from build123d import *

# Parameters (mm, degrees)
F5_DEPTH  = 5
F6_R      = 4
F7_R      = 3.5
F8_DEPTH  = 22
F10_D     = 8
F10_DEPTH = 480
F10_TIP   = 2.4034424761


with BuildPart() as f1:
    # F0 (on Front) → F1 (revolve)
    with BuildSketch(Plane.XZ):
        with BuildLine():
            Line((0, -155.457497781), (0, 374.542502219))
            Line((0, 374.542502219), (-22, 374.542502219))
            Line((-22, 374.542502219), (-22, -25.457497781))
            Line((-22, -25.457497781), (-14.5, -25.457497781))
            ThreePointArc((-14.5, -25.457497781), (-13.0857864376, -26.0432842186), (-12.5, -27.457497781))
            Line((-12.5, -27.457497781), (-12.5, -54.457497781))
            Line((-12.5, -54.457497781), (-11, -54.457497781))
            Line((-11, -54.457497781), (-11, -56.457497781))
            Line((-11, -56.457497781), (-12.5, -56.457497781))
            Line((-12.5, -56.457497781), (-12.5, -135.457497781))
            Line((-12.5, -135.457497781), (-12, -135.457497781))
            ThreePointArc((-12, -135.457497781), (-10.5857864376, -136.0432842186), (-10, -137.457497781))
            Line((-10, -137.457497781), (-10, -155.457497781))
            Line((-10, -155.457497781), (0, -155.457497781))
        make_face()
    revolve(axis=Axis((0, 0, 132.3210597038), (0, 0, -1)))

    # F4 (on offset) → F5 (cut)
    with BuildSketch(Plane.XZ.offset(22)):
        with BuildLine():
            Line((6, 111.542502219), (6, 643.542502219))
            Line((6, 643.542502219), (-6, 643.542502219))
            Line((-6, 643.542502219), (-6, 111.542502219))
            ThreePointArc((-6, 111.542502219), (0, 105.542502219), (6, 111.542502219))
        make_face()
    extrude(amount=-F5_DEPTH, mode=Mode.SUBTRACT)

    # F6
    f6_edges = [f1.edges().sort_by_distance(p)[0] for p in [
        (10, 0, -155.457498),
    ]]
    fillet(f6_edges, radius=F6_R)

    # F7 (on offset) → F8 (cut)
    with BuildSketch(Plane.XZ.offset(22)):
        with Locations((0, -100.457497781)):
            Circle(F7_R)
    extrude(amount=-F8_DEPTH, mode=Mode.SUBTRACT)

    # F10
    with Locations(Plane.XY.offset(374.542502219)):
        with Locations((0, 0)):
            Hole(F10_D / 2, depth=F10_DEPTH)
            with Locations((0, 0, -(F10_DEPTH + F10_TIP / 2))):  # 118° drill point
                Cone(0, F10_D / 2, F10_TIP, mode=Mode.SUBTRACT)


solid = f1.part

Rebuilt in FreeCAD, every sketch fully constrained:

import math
import FreeCAD as App
import Part
import Sketcher
from FreeCAD import Vector


def edges_at(feature, points):
    """Names of the edges that pass closest to the given points."""
    edges = feature.Shape.Edges
    near = lambda p: min(range(len(edges)), key=lambda i: edges[i].distToShape(Part.Vertex(*p))[0])
    return sorted({f"Edge{near(p) + 1}" for p in points})

doc = App.newDocument("Part")
body = doc.addObject("PartDesign::Body", "Body")

sketch1 = body.newObject("Sketcher::SketchObject", "Sketch")
sketch1.AttachmentSupport = (doc.getObject("XZ_Plane"), [""])
sketch1.MapMode = "FlatFace"
sketch1.addGeometry([
    Part.LineSegment(Vector(0, -155.5, 0), Vector(0, 374.5, 0)),
    Part.LineSegment(Vector(0, 374.5, 0), Vector(-22, 374.5, 0)),
    Part.LineSegment(Vector(-22, 374.5, 0), Vector(-22, -25.5, 0)),
    Part.LineSegment(Vector(-22, -25.5, 0), Vector(-14.5, -25.5, 0)),
    Part.ArcOfCircle(Part.Circle(Vector(-14.5, -27.5, 0), Vector(0, 0, 1), 2), math.radians(0), math.radians(90)),
    Part.LineSegment(Vector(-12.5, -27.5, 0), Vector(-12.5, -54.5, 0)),
    Part.LineSegment(Vector(-12.5, -54.5, 0), Vector(-11, -54.5, 0)),
    Part.LineSegment(Vector(-11, -54.5, 0), Vector(-11, -56.5, 0)),
    Part.LineSegment(Vector(-11, -56.5, 0), Vector(-12.5, -56.5, 0)),
    Part.LineSegment(Vector(-12.5, -56.5, 0), Vector(-12.5, -135.5, 0)),
    Part.LineSegment(Vector(-12.5, -135.5, 0), Vector(-12, -135.5, 0)),
    Part.ArcOfCircle(Part.Circle(Vector(-12, -137.5, 0), Vector(0, 0, 1), 2), math.radians(0), math.radians(90)),
    Part.LineSegment(Vector(-10, -137.5, 0), Vector(-10, -155.5, 0)),
    Part.LineSegment(Vector(-10, -155.5, 0), Vector(0, -155.5, 0)),
], False)
sketch1.addConstraint([
    Sketcher.Constraint("Coincident", 0, 2, 1, 1),
    Sketcher.Constraint("Coincident", 1, 2, 2, 1),
    Sketcher.Constraint("Coincident", 2, 2, 3, 1),
    Sketcher.Constraint("Tangent", 3, 2, 4, 2),
    Sketcher.Constraint("Tangent", 4, 1, 5, 1),
    Sketcher.Constraint("Coincident", 5, 2, 6, 1),
    Sketcher.Constraint("Coincident", 6, 2, 7, 1),
    Sketcher.Constraint("Coincident", 7, 2, 8, 1),
    Sketcher.Constraint("Coincident", 8, 2, 9, 1),
    Sketcher.Constraint("Coincident", 9, 2, 10, 1),
    Sketcher.Constraint("Tangent", 10, 2, 11, 2),
    Sketcher.Constraint("Tangent", 11, 1, 12, 1),
    Sketcher.Constraint("Coincident", 12, 2, 13, 1),
    Sketcher.Constraint("Coincident", 13, 2, 0, 1),
    Sketcher.Constraint("Vertical", 0),
    Sketcher.Constraint("Horizontal", 1),
    Sketcher.Constraint("Vertical", 2),
    Sketcher.Constraint("Horizontal", 3),
    Sketcher.Constraint("Vertical", 5),
    Sketcher.Constraint("Horizontal", 6),
    Sketcher.Constraint("Vertical", 7),
    Sketcher.Constraint("Horizontal", 8),
    Sketcher.Constraint("Vertical", 9),
    Sketcher.Constraint("Horizontal", 10),
    Sketcher.Constraint("Vertical", 12),
    Sketcher.Constraint("Horizontal", 13),
    Sketcher.Constraint("Equal", 4, 11),
    Sketcher.Constraint("PointOnObject", 0, 2, -2),
    Sketcher.Constraint("Vertical", 5, 2, 8, 2),
    Sketcher.Constraint("Radius", 4, 2.0),
    Sketcher.Constraint("DistanceX", 1, 2, 1, 1, 22.0),
    Sketcher.Constraint("DistanceX", 13, 1, 13, 2, 10.0),
    Sketcher.Constraint("DistanceY", 0, 1, 0, 2, 530.0),
    Sketcher.Constraint("DistanceY", 2, 2, 2, 1, 400.0),
    Sketcher.Constraint("DistanceY", 5, 2, 5, 1, 27.0),
    Sketcher.Constraint("DistanceY", 7, 2, 7, 1, 2.0),
    Sketcher.Constraint("DistanceY", 9, 2, 9, 1, 79.0),
    Sketcher.Constraint("DistanceX", 3, 1, 3, 2, 7.5),
    Sketcher.Constraint("DistanceX", 6, 1, 6, 2, 1.5),
    Sketcher.Constraint("DistanceY", 4, 3, -1, 1, 27.457498),
])
revolution = body.newObject("PartDesign::Revolution", "Revolution")
revolution.Profile = sketch1
revolution.ReferenceAxis = (sketch1, ["V_Axis"])
revolution.Angle = 360

sketch2 = body.newObject("Sketcher::SketchObject", "Sketch001")
sketch2.AttachmentSupport = (doc.getObject("XZ_Plane"), [""])
sketch2.MapMode = "FlatFace"
sketch2.AttachmentOffset = App.Placement(Vector(0, 0, 22), App.Rotation())
sketch2.addGeometry([
    Part.LineSegment(Vector(6, 112, 0), Vector(6, 644, 0)),
    Part.LineSegment(Vector(6, 644, 0), Vector(-6, 644, 0)),
    Part.LineSegment(Vector(-6, 644, 0), Vector(-6, 112, 0)),
    Part.ArcOfCircle(Part.Circle(Vector(0, 112, 0), Vector(0, 0, 1), 6), math.radians(180), math.radians(360)),
], False)
sketch2.addConstraint([
    Sketcher.Constraint("Coincident", 0, 2, 1, 1),
    Sketcher.Constraint("Coincident", 1, 2, 2, 1),
    Sketcher.Constraint("Tangent", 2, 2, 3, 1),
    Sketcher.Constraint("Tangent", 3, 2, 0, 1),
    Sketcher.Constraint("Vertical", 0),
    Sketcher.Constraint("Horizontal", 1),
    Sketcher.Constraint("Vertical", 2),
    Sketcher.Constraint("PointOnObject", 3, 3, -2),
    Sketcher.Constraint("Radius", 3, 6.0),
    Sketcher.Constraint("DistanceY", 0, 1, 0, 2, 532.0),
    Sketcher.Constraint("DistanceY", -1, 1, 3, 3, 111.542502),
])
pocket1 = body.newObject("PartDesign::Pocket", "Pocket")
pocket1.Profile = sketch2
pocket1.Length = 5
doc.recompute()

fillet = body.newObject("PartDesign::Fillet", "Fillet")
fillet.Base = (pocket1, edges_at(pocket1, [(10, 0, -155.457)]))
fillet.Radius = 4

sketch3 = body.newObject("Sketcher::SketchObject", "Sketch002")
sketch3.AttachmentSupport = (doc.getObject("XZ_Plane"), [""])
sketch3.MapMode = "FlatFace"
sketch3.AttachmentOffset = App.Placement(Vector(0, 0, 22), App.Rotation())
sketch3.addGeometry(Part.Circle(Vector(0, -100.5, 0), Vector(0, 0, 1), 3.5), False)
sketch3.addConstraint([
    Sketcher.Constraint("PointOnObject", 0, 3, -2),
    Sketcher.Constraint("Diameter", 0, 7.0),
    Sketcher.Constraint("DistanceY", 0, 3, -1, 1, 100.457498),
])
pocket2 = body.newObject("PartDesign::Pocket", "Pocket001")
pocket2.Profile = sketch3
pocket2.Length = 22

sketch4 = body.newObject("Sketcher::SketchObject", "Sketch003")
sketch4.AttachmentSupport = (doc.getObject("XY_Plane"), [""])
sketch4.MapMode = "FlatFace"
sketch4.AttachmentOffset = App.Placement(Vector(0, 0, 374.542502), App.Rotation())
sketch4.addGeometry(Part.Circle(Vector(0, 0, 0), Vector(0, 0, 1), 4), False)
sketch4.addConstraint([
    Sketcher.Constraint("Coincident", 0, 3, -1, 1),
    Sketcher.Constraint("Diameter", 0, 8.0),
])
doc.recompute()
hole = body.newObject("PartDesign::Hole", "Hole")
hole.Profile = sketch4
hole.ThreadType = "None"
hole.Diameter = 8
hole.DepthType = "Dimension"
hole.Depth = 480
hole.DrillPoint = "Angled"
hole.DrillPointAngle = 118

doc.recompute()
